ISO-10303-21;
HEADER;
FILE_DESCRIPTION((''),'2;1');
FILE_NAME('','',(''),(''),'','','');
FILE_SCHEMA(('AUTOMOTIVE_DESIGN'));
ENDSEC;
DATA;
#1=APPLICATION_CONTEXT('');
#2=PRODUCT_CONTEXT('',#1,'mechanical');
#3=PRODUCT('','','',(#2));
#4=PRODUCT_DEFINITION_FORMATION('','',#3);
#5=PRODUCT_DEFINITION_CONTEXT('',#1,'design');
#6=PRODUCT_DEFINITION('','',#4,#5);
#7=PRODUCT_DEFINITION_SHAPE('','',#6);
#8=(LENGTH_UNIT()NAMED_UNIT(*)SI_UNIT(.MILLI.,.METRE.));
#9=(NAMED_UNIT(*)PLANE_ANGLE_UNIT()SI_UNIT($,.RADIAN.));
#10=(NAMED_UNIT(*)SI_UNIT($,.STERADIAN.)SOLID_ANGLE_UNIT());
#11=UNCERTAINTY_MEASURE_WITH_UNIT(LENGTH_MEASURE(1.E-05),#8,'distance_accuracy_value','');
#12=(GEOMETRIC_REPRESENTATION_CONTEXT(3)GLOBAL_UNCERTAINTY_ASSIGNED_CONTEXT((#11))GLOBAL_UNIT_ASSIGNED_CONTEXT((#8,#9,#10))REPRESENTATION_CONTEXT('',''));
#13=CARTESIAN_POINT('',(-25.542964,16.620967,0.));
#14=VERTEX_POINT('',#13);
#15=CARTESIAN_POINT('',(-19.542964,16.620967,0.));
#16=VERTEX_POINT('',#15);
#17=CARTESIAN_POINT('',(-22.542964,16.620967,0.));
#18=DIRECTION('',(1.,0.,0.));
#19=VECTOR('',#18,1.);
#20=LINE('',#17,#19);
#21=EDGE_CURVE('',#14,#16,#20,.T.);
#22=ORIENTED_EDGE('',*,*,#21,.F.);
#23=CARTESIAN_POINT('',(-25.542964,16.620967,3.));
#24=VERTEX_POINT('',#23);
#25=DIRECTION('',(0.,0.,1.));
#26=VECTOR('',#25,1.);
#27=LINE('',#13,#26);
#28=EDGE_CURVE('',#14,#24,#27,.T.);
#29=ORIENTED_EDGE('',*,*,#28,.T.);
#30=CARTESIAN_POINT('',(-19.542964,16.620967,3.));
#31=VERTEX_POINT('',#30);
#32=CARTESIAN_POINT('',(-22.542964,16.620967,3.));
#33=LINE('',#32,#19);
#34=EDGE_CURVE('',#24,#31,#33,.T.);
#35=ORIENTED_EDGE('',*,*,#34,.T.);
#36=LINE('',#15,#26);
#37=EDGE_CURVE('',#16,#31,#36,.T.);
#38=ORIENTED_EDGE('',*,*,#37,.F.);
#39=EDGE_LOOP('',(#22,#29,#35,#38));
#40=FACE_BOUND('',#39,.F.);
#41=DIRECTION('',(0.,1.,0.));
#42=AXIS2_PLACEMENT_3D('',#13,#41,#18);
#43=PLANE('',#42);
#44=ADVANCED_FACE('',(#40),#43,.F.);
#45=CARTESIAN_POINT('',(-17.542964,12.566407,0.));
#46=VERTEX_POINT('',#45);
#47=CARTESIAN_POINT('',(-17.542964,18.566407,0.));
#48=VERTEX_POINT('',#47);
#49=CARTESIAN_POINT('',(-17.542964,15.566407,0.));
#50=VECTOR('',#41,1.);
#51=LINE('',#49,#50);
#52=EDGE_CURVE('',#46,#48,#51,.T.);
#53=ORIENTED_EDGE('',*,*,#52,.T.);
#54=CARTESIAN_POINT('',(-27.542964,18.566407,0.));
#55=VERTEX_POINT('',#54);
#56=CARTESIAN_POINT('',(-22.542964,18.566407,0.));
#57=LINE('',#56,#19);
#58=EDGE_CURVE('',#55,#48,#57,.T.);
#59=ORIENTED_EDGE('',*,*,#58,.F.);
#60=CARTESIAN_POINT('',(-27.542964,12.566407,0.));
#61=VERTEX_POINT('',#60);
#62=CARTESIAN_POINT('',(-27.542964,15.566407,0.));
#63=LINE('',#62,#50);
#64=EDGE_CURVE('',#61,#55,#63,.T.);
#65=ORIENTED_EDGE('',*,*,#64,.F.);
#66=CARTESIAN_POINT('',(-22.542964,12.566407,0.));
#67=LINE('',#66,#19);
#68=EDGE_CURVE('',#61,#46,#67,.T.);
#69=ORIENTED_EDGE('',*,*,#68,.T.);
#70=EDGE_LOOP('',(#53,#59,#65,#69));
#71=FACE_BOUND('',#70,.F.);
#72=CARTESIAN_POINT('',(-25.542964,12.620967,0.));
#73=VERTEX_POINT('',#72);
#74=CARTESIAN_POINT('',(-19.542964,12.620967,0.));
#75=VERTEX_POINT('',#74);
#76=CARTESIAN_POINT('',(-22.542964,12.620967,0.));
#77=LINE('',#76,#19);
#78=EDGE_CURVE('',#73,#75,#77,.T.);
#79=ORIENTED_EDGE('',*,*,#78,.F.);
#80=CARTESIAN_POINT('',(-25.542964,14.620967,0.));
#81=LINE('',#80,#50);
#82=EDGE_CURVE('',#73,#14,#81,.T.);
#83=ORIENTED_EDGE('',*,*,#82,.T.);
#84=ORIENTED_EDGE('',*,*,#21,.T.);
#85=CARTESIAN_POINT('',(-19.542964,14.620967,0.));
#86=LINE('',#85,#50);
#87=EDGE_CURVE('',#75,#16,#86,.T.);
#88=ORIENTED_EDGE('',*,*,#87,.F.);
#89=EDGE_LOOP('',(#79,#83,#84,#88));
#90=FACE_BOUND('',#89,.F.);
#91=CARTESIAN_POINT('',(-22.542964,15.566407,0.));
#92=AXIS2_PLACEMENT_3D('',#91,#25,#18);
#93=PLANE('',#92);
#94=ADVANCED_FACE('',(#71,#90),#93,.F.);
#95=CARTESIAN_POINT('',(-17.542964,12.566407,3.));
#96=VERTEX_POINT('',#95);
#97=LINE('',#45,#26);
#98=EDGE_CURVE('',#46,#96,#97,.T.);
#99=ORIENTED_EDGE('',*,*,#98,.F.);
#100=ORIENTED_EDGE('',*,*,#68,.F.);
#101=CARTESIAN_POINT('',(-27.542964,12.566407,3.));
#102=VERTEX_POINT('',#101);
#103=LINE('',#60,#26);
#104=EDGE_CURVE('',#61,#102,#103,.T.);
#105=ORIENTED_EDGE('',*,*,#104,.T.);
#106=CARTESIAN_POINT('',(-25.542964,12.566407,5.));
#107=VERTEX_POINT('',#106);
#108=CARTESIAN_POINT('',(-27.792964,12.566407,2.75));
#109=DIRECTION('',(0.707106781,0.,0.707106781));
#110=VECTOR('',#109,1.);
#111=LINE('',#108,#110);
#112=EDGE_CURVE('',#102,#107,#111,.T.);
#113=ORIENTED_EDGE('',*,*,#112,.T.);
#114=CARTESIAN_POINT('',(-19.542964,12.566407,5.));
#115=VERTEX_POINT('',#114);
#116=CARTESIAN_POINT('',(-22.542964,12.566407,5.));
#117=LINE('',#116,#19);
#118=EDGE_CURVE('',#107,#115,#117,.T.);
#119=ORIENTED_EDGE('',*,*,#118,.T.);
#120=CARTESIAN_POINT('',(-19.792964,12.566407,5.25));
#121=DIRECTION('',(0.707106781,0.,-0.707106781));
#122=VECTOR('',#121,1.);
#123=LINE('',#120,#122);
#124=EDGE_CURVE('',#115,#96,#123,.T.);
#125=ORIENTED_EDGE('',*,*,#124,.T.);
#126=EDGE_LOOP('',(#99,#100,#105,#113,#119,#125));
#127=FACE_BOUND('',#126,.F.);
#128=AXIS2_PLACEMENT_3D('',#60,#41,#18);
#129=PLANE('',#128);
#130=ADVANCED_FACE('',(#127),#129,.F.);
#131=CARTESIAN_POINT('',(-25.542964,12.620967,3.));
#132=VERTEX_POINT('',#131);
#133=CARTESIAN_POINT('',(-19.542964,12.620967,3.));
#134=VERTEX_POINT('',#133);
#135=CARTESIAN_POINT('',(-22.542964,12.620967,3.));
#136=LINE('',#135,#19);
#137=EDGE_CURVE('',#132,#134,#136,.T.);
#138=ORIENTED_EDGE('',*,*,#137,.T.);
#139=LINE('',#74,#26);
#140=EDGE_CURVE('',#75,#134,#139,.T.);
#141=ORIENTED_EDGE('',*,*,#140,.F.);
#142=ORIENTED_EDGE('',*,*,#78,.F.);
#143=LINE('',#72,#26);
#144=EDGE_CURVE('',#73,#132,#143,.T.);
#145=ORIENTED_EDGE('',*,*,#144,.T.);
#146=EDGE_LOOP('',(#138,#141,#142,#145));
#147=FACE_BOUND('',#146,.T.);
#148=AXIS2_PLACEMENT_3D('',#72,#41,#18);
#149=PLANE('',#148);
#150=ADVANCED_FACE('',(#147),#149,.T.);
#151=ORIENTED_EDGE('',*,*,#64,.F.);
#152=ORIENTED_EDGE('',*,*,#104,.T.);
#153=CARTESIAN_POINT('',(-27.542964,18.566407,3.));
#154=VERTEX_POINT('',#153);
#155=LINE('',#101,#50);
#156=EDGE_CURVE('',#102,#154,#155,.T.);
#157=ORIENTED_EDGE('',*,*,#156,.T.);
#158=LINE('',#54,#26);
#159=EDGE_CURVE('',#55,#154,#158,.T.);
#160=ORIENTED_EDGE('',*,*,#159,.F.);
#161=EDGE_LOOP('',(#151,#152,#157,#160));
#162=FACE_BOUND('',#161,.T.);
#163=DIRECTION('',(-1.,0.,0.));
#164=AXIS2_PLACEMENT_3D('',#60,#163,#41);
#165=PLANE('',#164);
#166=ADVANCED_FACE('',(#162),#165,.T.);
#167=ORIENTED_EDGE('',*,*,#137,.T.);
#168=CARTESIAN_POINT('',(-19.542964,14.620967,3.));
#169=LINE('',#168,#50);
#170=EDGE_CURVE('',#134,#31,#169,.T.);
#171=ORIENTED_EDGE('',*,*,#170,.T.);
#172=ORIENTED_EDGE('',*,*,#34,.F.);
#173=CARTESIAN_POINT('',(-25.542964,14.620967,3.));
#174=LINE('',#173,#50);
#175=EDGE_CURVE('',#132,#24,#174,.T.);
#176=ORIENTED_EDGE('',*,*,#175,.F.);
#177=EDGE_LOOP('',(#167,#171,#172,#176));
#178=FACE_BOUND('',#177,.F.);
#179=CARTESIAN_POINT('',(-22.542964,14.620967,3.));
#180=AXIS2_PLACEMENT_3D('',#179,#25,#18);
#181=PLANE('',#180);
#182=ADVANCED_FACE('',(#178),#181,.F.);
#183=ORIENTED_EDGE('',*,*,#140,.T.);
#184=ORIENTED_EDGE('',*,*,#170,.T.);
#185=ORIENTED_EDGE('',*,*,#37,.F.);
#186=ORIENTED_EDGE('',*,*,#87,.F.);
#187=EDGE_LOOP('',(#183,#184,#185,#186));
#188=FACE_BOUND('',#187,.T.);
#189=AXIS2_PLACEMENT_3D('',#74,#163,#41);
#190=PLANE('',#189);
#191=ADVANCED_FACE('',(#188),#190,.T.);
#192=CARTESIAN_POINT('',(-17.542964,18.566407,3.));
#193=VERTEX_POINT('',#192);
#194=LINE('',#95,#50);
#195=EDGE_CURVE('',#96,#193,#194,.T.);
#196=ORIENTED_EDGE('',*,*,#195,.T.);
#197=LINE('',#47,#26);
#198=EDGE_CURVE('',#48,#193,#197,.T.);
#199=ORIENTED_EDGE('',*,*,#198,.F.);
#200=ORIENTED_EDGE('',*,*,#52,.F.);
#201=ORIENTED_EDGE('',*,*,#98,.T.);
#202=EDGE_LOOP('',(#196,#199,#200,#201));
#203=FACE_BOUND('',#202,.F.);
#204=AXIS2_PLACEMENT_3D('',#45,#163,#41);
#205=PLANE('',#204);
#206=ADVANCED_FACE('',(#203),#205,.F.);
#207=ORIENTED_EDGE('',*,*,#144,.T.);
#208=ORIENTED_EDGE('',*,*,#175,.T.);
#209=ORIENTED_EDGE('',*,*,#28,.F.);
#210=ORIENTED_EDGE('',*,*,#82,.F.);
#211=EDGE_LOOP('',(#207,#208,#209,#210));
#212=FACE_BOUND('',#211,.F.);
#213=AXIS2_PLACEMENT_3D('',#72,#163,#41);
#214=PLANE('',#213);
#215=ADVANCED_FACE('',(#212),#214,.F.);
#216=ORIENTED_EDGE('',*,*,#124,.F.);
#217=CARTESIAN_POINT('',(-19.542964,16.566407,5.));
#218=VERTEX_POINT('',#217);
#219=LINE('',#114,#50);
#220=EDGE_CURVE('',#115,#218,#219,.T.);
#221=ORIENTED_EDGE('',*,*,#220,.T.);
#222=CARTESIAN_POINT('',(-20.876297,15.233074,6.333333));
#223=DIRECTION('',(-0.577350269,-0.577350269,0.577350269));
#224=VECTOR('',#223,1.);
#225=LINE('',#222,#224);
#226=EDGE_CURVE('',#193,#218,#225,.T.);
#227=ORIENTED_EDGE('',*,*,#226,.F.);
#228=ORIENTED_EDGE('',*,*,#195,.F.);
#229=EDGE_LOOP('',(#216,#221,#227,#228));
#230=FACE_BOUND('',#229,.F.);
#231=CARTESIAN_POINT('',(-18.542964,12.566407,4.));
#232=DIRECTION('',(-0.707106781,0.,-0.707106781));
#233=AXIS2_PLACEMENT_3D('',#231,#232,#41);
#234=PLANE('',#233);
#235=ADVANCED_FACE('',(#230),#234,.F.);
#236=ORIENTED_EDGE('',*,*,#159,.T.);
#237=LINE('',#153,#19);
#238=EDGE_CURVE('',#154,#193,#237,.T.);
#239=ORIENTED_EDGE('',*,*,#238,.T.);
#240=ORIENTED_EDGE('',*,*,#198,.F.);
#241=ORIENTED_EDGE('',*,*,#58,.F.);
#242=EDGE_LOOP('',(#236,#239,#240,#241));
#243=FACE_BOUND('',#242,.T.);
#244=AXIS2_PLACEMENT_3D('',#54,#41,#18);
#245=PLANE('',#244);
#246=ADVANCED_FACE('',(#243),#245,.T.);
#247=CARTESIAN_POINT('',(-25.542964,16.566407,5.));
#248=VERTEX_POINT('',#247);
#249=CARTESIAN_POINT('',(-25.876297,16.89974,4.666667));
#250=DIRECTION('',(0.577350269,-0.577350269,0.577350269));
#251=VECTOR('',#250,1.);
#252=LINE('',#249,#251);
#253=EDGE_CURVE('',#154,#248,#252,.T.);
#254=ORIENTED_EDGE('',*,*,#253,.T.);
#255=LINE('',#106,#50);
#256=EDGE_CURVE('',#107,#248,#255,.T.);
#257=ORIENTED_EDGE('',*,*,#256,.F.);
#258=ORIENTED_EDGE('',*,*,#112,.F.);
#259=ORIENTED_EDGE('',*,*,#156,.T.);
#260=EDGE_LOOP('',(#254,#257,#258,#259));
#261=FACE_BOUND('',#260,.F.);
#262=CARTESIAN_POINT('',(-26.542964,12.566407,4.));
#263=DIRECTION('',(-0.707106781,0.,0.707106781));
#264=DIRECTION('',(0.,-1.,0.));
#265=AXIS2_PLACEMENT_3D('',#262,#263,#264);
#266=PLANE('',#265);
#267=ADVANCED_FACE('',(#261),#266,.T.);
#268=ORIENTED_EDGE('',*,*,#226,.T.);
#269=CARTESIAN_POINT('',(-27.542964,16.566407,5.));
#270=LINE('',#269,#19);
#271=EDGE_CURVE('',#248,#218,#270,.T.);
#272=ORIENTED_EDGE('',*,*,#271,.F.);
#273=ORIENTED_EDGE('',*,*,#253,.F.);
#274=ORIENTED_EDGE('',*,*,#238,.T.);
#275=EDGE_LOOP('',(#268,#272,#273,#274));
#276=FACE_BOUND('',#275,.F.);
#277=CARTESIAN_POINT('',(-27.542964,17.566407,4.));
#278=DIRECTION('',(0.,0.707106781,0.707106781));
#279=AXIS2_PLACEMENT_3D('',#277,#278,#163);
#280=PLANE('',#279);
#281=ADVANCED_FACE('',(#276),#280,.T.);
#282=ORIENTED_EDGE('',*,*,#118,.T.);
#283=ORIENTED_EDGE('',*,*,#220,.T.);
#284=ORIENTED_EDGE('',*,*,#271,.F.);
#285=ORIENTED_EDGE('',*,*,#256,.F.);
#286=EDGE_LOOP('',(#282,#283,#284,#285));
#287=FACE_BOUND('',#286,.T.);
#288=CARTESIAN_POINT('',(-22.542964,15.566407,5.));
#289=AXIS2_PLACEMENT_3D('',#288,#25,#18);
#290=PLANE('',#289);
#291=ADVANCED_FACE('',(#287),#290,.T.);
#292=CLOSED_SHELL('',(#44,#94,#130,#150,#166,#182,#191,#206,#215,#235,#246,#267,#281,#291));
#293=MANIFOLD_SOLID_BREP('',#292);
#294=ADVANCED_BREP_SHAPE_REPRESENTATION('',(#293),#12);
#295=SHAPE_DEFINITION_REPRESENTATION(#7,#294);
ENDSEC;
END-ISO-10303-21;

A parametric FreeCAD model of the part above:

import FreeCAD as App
import Part
import Sketcher
from FreeCAD import Vector
Q = App.Units.Quantity


def edges_at(feature, points):
    """Names of the edges that pass closest to the given points."""
    edges = feature.Shape.Edges
    near = lambda p: min(range(len(edges)), key=lambda i: edges[i].distToShape(Part.Vertex(*p))[0])
    return sorted({f"Edge{near(p) + 1}" for p in points})

doc = App.newDocument("Part")
body = doc.addObject("PartDesign::Body", "Body")

sketch1 = doc.addObject("Sketcher::SketchObject", "Sketch")
body.addObject(sketch1)
sketch1.AttachmentSupport = (doc.XY_Plane, [""])
sketch1.MapMode = "FlatFace"
sketch1.addGeometry([
    Part.LineSegment(Vector(-28, 19, 0), Vector(-28, 13, 0)),
    Part.LineSegment(Vector(-28, 13, 0), Vector(-18, 13, 0)),
    Part.LineSegment(Vector(-18, 13, 0), Vector(-18, 19, 0)),
    Part.LineSegment(Vector(-18, 19, 0), Vector(-28, 19, 0)),
], False)
sketch1.addConstraint([
    Sketcher.Constraint("Coincident", 0, 2, 1, 1),
    Sketcher.Constraint("Coincident", 1, 2, 2, 1),
    Sketcher.Constraint("Coincident", 2, 2, 3, 1),
    Sketcher.Constraint("Coincident", 3, 2, 0, 1),
    Sketcher.Constraint("Vertical", 0),
    Sketcher.Constraint("Horizontal", 1),
    Sketcher.Constraint("Vertical", 2),
    Sketcher.Constraint("Horizontal", 3),
    Sketcher.Constraint("DistanceX", 1, 1, 1, 2, Q("10 mm")),
    Sketcher.Constraint("DistanceY", 0, 2, 0, 1, Q("6 mm")),
    Sketcher.Constraint("DistanceX", 0, 2, -1, 1, Q("27.542964 mm")),
    Sketcher.Constraint("DistanceY", -1, 1, 0, 2, Q("12.566407 mm")),
])
pad1 = doc.addObject("PartDesign::Pad", "Pad")
body.addObject(pad1)
pad1.Profile = sketch1
pad1.Length = 5

sketch2 = doc.addObject("Sketcher::SketchObject", "Sketch001")
body.addObject(sketch2)
sketch2.AttachmentSupport = (doc.XY_Plane, [""])
sketch2.MapMode = "FlatFace"
sketch2.addGeometry([
    Part.LineSegment(Vector(-25.5, 16.6, 0), Vector(-25.5, 12.6, 0)),
    Part.LineSegment(Vector(-25.5, 12.6, 0), Vector(-19.5, 12.6, 0)),
    Part.LineSegment(Vector(-19.5, 12.6, 0), Vector(-19.5, 16.6, 0)),
    Part.LineSegment(Vector(-19.5, 16.6, 0), Vector(-25.5, 16.6, 0)),
], False)
sketch2.addConstraint([
    Sketcher.Constraint("Coincident", 0, 2, 1, 1),
    Sketcher.Constraint("Coincident", 1, 2, 2, 1),
    Sketcher.Constraint("Coincident", 2, 2, 3, 1),
    Sketcher.Constraint("Coincident", 3, 2, 0, 1),
    Sketcher.Constraint("Vertical", 0),
    Sketcher.Constraint("Horizontal", 1),
    Sketcher.Constraint("Vertical", 2),
    Sketcher.Constraint("Horizontal", 3),
    Sketcher.Constraint("DistanceX", 1, 1, 1, 2, Q("6 mm")),
    Sketcher.Constraint("DistanceY", 0, 2, 0, 1, Q("4 mm")),
    Sketcher.Constraint("DistanceX", 0, 2, -1, 1, Q("25.542964 mm")),
    Sketcher.Constraint("DistanceY", -1, 1, 0, 2, Q("12.620967 mm")),
])
pocket1 = doc.addObject("PartDesign::Pocket", "Pocket")
body.addObject(pocket1)
pocket1.Profile = sketch2
pocket1.Length = 3
pocket1.Reversed = True
doc.recompute()

chamfer = doc.addObject("PartDesign::Chamfer", "Chamfer")
body.addObject(chamfer)
chamfer.Base = (pocket1, edges_at(pocket1, [(-27.543, 15.566, 5), (-22.543, 18.566, 5), (-17.543, 15.566, 5)]))
chamfer.Size = 2

doc.recompute()
